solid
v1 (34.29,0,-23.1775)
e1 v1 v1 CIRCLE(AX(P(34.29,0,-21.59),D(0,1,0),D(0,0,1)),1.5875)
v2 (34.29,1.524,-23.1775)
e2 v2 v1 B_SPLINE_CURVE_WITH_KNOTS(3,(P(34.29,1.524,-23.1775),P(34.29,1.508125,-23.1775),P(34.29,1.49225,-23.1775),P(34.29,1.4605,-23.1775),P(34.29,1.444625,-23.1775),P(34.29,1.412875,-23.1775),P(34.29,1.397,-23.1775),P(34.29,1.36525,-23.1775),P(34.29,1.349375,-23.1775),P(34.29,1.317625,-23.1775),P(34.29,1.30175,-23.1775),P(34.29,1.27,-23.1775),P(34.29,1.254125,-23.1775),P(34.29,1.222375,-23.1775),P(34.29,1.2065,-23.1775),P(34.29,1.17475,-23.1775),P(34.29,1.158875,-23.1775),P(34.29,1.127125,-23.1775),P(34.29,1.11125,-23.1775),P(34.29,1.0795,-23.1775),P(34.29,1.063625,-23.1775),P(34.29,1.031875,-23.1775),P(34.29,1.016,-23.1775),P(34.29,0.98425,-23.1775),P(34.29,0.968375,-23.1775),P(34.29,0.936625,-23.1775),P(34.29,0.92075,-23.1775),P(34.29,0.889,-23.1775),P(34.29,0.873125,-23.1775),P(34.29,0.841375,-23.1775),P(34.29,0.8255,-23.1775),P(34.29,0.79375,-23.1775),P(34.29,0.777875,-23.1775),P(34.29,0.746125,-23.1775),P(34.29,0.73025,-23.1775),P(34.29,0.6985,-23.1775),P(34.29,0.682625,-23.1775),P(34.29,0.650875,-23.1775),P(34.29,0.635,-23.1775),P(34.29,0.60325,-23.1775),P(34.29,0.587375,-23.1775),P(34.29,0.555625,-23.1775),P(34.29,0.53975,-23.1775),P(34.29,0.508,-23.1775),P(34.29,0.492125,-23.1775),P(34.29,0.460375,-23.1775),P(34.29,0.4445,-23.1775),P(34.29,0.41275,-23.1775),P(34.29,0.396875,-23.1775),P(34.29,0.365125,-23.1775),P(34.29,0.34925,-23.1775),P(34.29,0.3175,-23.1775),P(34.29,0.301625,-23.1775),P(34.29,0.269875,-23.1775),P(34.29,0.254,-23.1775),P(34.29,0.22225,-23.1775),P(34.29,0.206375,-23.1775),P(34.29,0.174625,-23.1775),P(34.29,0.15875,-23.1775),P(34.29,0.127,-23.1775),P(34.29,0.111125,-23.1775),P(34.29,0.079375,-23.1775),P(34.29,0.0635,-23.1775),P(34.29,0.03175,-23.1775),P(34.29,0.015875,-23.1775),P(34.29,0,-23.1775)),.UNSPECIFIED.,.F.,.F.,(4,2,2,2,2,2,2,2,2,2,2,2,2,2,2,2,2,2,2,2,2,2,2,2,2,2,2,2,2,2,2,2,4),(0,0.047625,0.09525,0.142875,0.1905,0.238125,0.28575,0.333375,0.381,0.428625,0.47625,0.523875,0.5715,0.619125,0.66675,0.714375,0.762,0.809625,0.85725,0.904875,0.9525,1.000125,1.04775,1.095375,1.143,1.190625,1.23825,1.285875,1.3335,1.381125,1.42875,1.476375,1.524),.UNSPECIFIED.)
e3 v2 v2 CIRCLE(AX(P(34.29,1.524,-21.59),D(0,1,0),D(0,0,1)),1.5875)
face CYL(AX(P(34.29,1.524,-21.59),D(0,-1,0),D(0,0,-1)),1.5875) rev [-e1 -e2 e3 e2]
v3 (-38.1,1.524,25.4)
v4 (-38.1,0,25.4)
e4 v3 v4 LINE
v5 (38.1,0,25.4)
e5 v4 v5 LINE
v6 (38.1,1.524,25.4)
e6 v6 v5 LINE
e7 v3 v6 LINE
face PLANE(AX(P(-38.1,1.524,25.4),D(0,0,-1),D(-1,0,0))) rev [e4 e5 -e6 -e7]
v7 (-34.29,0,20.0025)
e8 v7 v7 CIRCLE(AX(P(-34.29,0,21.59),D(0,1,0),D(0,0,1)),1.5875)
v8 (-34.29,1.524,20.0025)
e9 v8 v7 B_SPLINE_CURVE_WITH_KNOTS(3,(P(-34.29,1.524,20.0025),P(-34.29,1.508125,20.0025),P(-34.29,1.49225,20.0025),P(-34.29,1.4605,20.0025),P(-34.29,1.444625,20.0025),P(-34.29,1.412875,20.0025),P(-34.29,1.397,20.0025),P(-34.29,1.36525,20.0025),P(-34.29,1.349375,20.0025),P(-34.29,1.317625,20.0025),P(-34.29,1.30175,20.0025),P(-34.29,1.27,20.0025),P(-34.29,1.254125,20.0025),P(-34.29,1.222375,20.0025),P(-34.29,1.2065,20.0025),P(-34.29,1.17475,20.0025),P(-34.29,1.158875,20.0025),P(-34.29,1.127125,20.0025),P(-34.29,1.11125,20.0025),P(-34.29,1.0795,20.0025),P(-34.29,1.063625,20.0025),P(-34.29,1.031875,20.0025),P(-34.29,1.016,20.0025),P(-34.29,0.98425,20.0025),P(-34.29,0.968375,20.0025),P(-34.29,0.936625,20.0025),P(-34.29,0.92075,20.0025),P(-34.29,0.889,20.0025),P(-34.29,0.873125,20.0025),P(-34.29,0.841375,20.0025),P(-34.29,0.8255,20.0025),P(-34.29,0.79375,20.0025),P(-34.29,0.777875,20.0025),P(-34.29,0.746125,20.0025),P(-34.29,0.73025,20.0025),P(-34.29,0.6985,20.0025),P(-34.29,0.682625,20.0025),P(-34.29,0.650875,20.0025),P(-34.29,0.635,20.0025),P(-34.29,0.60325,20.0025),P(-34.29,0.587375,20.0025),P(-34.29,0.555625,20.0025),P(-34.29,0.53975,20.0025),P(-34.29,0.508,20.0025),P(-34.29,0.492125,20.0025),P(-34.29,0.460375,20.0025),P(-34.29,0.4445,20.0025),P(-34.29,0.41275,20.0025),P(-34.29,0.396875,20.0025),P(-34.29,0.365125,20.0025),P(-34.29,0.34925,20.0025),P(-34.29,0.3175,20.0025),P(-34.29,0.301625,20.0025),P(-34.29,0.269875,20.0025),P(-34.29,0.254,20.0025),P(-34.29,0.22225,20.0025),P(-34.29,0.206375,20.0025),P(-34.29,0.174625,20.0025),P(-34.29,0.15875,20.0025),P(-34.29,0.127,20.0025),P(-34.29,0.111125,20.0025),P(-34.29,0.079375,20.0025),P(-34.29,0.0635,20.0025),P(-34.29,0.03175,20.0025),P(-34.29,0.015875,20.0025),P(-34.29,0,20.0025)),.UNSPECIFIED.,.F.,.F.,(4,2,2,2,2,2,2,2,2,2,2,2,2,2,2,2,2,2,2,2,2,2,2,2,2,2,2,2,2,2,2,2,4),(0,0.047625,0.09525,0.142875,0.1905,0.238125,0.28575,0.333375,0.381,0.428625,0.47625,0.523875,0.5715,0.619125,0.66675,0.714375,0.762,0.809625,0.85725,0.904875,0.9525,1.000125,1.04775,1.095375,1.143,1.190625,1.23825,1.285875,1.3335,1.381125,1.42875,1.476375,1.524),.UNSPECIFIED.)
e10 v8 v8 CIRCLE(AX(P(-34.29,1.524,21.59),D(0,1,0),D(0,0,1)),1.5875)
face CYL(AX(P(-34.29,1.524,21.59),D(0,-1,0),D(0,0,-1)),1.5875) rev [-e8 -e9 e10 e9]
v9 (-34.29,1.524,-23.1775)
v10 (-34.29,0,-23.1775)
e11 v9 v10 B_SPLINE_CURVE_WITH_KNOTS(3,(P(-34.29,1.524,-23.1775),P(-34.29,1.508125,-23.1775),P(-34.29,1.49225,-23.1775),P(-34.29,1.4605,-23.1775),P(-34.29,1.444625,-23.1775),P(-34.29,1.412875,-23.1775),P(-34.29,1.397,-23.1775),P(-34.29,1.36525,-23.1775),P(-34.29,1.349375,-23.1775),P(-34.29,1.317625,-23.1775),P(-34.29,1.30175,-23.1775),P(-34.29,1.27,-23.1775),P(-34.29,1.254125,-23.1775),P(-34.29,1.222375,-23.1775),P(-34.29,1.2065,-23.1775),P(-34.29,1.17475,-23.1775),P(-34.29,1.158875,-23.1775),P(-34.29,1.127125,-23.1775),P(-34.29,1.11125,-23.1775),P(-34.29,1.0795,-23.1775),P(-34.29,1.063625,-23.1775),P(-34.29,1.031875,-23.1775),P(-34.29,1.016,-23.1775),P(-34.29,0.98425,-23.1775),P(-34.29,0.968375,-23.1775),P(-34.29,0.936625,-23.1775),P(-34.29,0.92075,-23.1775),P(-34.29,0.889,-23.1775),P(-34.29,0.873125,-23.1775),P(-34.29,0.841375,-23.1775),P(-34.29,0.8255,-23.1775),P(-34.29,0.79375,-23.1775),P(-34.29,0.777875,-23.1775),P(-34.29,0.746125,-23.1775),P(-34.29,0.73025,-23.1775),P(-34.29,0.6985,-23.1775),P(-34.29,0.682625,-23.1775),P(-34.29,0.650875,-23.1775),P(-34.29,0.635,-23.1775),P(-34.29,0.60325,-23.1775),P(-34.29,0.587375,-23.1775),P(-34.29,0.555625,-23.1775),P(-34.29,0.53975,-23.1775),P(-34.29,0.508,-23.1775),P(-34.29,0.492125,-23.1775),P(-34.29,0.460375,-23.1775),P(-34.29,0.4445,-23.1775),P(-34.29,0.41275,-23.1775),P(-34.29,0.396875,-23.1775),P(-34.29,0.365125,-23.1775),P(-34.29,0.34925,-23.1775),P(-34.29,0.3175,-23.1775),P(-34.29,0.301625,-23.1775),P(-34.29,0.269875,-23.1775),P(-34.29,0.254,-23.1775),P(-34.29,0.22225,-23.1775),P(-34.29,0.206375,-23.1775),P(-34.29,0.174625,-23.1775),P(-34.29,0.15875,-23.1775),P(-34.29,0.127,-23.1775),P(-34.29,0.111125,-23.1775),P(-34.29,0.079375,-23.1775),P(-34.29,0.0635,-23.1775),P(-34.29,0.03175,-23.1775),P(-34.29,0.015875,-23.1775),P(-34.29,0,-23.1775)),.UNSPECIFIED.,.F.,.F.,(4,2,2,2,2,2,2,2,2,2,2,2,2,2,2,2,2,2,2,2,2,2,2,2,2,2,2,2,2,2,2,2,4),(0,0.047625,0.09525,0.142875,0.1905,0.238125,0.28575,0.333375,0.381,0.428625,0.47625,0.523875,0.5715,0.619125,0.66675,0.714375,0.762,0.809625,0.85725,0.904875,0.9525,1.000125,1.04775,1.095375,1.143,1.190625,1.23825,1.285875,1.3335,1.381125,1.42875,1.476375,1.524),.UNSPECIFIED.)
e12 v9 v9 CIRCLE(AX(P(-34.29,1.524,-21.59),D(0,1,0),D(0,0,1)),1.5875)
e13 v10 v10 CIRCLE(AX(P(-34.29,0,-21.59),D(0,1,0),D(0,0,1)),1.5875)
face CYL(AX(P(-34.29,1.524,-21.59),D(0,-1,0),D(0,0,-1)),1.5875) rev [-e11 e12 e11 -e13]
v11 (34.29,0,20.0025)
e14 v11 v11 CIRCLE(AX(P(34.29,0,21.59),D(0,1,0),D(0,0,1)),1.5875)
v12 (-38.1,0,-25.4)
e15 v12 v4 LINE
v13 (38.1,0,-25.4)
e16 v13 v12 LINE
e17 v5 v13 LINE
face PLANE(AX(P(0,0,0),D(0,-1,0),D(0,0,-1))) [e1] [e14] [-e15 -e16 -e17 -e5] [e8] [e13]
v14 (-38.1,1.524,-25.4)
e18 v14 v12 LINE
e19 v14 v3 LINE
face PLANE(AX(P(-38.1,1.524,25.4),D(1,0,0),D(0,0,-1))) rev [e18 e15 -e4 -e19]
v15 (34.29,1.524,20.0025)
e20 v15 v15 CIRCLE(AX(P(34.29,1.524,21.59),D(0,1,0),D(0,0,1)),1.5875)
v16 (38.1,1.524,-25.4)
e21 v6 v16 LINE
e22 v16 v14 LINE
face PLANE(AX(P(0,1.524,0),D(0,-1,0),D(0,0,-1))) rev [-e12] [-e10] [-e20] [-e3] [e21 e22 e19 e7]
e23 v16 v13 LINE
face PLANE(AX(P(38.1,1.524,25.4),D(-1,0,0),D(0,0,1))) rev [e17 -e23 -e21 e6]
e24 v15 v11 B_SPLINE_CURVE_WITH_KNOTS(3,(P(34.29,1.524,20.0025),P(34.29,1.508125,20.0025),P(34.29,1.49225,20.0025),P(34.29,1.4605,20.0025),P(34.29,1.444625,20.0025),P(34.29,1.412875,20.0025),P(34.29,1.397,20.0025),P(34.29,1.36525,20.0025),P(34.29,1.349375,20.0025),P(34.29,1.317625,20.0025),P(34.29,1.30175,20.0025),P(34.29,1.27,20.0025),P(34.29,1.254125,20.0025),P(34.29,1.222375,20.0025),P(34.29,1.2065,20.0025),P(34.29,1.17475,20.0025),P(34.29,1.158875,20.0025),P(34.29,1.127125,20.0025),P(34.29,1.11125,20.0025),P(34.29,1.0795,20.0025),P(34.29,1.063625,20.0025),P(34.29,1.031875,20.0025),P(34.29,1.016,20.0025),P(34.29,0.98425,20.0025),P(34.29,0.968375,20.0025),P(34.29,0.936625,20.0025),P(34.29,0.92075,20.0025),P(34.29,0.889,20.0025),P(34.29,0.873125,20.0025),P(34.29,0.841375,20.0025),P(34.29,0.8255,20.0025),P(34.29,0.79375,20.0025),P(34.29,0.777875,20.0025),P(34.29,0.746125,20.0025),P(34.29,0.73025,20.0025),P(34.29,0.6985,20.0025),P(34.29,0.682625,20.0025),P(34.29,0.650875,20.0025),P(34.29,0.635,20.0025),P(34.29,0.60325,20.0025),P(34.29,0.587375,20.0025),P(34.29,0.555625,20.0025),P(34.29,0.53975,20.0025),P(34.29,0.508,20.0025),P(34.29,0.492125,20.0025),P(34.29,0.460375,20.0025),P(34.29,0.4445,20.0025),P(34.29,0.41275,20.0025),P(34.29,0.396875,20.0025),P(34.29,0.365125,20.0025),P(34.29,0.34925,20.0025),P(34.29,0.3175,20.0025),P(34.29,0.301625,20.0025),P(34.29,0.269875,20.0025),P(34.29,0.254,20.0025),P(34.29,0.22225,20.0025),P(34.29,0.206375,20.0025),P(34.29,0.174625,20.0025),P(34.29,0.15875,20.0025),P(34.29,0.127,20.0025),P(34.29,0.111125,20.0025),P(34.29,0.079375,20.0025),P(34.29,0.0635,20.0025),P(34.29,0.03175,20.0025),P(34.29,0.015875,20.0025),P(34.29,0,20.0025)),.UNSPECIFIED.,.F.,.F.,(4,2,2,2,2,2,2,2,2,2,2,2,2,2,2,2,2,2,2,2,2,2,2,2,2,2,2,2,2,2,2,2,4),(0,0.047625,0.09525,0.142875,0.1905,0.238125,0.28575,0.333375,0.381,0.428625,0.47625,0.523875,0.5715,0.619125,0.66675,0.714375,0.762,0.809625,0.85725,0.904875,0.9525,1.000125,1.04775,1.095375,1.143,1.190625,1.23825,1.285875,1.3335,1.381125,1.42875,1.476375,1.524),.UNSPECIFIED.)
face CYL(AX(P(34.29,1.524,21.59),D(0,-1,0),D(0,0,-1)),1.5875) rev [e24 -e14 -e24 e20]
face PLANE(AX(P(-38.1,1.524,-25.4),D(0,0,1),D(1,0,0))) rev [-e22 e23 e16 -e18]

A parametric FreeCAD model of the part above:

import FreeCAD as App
import Part
import Sketcher
from FreeCAD import Vector
Q = App.Units.Quantity

doc = App.newDocument("Part")
params = doc.addObject("Spreadsheet::Sheet", "Params")
for row, (alias, value) in enumerate([
    ("sketch1_width", "3 in"),
    ("sketch1_height", "2 in"),
    ("sketch1_diameter", "0.125 in"),
    ("pad1_length", "0.06 in"),
], start=1):
    params.set(f"A{row}", alias)
    params.set(f"B{row}", "=" + value)
    params.setAlias(f"B{row}", alias)

body = doc.addObject("PartDesign::Body", "Body")

sketch1 = body.newObject("Sketcher::SketchObject", "Sketch")
sketch1.AttachmentSupport = (doc.getObject("XZ_Plane"), [""])
sketch1.MapMode = "FlatFace"
sketch1.addGeometry([
    Part.LineSegment(Vector(-38.1, -25.4, 0), Vector(-38.1, 25.4, 0)),
    Part.LineSegment(Vector(-38.1, 25.4, 0), Vector(38.1, 25.4, 0)),
    Part.LineSegment(Vector(38.1, 25.4, 0), Vector(38.1, -25.4, 0)),
    Part.LineSegment(Vector(38.1, -25.4, 0), Vector(-38.1, -25.4, 0)),
    Part.Circle(Vector(-34.29, 21.59, 0), Vector(0, 0, 1), 1.5875),
    Part.Circle(Vector(34.29, 21.59, 0), Vector(0, 0, 1), 1.5875),
    Part.Circle(Vector(-34.29, -21.59, 0), Vector(0, 0, 1), 1.5875),
    Part.Circle(Vector(34.29, -21.59, 0), Vector(0, 0, 1), 1.5875),
], False)
sketch1.addConstraint([
    Sketcher.Constraint("Coincident", 0, 2, 1, 1),
    Sketcher.Constraint("Coincident", 1, 2, 2, 1),
    Sketcher.Constraint("Coincident", 2, 2, 3, 1),
    Sketcher.Constraint("Coincident", 3, 2, 0, 1),
    Sketcher.Constraint("Vertical", 0),
    Sketcher.Constraint("Horizontal", 1),
    Sketcher.Constraint("Vertical", 2),
    Sketcher.Constraint("Horizontal", 3),
    Sketcher.Constraint("Equal", 4, 5),
    Sketcher.Constraint("Equal", 5, 6),
    Sketcher.Constraint("Equal", 6, 7),
    Sketcher.Constraint("Symmetric", 5, 3, 6, 3, -1, 1),
    Sketcher.Constraint("Symmetric", 4, 3, 7, 3, -1, 1),
    Sketcher.Constraint("Symmetric", 0, 2, 2, 2, -1, 1),
    Sketcher.Constraint("Symmetric", 4, 3, 5, 3, -2),
    Sketcher.Constraint("DistanceX", 1, 1, 1, 2, Q("3 in")),
    Sketcher.Constraint("DistanceY", 0, 1, 0, 2, Q("2 in")),
    Sketcher.Constraint("Diameter", 4, Q("0.125 in")),
    Sketcher.Constraint("DistanceX", 4, 3, 5, 3, Q("2.7 in")),
    Sketcher.Constraint("DistanceY", 6, 3, 4, 3, Q("1.7 in")),
])
sketch1.setExpression("Constraints[15]", "Params.sketch1_width")
sketch1.setExpression("Constraints[16]", "Params.sketch1_height")
sketch1.setExpression("Constraints[17]", "Params.sketch1_diameter")
pad1 = body.newObject("PartDesign::Pad", "Pad")
pad1.Profile = sketch1
pad1.setExpression("Length", "Params.pad1_length")
pad1.Reversed = True

doc.recompute()
